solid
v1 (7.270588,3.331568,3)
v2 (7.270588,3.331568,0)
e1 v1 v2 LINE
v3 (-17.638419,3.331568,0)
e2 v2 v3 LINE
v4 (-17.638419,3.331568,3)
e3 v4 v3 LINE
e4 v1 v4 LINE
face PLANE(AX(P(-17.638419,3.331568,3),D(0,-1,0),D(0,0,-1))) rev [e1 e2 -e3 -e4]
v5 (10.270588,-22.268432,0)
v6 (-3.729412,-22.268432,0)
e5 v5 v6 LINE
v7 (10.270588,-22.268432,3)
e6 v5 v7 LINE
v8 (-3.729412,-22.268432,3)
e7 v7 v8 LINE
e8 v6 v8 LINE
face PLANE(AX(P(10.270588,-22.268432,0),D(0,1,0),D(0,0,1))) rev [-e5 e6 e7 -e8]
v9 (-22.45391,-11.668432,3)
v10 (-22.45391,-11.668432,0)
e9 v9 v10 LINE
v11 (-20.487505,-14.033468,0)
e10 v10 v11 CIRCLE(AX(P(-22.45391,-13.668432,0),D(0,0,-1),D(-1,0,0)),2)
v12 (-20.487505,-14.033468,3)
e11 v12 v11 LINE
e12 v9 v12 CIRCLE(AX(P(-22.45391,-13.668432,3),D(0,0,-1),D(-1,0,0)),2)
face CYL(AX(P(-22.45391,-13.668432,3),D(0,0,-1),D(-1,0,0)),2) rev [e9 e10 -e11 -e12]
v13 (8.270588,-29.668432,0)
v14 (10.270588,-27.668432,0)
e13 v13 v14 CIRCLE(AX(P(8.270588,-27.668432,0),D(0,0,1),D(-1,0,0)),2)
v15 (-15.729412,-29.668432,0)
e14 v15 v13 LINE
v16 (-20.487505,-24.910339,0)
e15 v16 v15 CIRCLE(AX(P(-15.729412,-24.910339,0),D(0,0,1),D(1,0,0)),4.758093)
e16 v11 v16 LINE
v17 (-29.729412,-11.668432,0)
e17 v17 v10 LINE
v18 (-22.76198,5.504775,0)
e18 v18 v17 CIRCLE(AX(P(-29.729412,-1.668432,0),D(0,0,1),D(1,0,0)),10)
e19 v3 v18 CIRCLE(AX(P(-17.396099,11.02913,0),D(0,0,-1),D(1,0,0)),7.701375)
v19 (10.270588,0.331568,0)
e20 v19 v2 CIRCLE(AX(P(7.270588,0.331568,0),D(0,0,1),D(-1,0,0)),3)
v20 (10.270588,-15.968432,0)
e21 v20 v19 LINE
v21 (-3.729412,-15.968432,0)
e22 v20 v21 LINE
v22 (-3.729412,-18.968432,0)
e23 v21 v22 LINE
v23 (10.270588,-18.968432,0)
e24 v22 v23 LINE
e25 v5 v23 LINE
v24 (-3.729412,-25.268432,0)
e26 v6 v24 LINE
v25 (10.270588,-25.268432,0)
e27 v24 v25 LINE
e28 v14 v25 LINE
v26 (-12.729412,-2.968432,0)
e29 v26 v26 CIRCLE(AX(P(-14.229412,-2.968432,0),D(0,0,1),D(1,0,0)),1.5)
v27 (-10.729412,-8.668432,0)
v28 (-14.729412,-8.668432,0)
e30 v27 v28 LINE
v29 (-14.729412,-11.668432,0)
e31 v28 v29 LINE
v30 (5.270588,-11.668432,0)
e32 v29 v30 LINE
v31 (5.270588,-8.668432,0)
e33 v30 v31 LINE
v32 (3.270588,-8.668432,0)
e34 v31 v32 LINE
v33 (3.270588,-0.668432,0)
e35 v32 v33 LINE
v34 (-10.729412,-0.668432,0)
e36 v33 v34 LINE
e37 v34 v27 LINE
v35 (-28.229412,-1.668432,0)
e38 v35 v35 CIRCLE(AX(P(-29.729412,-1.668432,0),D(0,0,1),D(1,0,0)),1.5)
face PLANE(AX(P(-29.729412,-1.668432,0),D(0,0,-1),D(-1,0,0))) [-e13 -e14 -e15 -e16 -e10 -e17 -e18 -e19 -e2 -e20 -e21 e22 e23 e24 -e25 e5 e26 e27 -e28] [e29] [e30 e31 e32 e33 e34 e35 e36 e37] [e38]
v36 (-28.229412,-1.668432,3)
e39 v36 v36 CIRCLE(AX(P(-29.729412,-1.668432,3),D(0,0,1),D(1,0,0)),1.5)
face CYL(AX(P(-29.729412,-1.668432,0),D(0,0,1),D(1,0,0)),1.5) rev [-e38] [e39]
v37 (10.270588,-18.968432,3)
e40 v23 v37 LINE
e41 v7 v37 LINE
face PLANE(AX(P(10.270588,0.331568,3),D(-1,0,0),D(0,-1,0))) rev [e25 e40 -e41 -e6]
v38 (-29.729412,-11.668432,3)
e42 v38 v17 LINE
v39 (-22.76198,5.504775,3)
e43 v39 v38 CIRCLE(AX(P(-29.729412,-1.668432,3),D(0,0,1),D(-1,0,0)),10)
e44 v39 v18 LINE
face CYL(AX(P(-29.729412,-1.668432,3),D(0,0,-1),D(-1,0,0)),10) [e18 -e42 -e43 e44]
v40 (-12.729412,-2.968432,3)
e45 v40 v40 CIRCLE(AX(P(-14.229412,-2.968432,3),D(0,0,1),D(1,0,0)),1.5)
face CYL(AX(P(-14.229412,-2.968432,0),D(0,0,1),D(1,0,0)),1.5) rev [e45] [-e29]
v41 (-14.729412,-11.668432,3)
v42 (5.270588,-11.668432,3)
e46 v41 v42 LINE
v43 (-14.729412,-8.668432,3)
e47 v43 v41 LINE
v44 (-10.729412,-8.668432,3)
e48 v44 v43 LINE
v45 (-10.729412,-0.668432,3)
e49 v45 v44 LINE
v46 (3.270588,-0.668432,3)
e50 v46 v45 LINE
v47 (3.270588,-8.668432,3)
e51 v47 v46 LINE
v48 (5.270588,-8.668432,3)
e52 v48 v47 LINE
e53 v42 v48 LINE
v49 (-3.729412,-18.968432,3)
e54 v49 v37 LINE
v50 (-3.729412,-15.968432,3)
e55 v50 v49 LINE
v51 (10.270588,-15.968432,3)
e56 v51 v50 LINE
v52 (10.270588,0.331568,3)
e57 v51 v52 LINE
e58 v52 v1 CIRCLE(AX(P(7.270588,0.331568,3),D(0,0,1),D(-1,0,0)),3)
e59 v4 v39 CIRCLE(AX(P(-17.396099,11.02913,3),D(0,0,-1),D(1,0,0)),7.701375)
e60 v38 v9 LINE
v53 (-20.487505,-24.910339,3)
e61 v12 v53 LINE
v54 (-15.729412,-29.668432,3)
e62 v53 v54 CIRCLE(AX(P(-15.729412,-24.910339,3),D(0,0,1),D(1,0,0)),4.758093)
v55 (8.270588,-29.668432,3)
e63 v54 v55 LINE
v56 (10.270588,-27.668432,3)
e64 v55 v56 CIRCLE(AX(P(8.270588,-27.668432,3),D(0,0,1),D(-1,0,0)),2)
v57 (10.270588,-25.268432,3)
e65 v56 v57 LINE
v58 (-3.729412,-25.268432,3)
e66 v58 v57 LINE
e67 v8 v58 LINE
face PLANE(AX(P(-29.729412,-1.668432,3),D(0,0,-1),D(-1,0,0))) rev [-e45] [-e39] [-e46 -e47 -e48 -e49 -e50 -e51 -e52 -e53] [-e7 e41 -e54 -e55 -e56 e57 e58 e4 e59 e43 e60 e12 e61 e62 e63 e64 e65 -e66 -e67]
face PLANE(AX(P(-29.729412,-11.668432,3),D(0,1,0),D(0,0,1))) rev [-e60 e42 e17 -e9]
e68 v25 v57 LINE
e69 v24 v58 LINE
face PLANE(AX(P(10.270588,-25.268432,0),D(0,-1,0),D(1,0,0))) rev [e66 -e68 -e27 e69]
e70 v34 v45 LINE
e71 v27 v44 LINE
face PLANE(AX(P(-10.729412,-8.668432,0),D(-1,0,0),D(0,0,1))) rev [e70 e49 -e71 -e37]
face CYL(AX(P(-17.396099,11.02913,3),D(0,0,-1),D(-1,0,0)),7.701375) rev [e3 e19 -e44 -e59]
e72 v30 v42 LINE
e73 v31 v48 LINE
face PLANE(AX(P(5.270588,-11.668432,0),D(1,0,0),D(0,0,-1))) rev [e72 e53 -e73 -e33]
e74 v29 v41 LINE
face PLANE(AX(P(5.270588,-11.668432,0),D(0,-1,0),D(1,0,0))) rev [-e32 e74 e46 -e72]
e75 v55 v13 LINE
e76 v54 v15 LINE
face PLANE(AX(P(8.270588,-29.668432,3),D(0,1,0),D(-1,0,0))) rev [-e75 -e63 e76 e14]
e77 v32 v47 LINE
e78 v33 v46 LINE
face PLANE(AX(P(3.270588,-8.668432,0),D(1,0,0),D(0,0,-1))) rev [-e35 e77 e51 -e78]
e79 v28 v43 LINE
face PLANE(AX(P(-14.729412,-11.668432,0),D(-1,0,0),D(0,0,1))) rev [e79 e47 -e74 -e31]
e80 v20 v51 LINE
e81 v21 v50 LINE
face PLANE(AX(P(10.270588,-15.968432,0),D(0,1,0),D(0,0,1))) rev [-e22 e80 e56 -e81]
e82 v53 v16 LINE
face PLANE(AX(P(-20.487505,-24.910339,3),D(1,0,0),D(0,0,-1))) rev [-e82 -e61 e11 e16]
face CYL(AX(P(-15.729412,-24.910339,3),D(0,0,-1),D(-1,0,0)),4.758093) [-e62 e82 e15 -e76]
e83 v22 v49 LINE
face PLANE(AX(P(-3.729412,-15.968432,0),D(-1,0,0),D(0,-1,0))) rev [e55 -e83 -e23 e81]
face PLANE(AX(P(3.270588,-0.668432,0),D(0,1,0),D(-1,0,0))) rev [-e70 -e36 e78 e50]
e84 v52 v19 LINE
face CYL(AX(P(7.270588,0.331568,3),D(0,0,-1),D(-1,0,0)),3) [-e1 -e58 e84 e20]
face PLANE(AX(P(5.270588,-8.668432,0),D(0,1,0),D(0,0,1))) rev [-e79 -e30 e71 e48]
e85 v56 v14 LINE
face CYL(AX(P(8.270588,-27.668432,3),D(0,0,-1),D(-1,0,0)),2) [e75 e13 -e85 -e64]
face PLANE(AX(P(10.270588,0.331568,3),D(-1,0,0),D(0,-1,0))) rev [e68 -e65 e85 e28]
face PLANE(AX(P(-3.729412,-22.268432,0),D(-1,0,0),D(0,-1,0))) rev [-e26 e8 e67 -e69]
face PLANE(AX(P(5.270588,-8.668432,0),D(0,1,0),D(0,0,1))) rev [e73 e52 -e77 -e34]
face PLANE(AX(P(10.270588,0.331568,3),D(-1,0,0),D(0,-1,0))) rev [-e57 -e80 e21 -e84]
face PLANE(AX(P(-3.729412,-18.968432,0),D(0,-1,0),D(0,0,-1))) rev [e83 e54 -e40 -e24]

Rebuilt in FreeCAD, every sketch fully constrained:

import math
import FreeCAD as App
import Part
import Sketcher
from FreeCAD import Vector

doc = App.newDocument("Part")
body = doc.addObject("PartDesign::Body", "Body")

# Sketch on XY plane
sketch1 = body.newObject("Sketcher::SketchObject", "Sketch")
sketch1.AttachmentSupport = (doc.getObject("XY_Plane"), [""])
sketch1.MapMode = "FlatFace"
sketch1.addGeometry(Part.LineSegment(Vector(10.3, -27.7, 0), Vector(10.3, 0.3, 0)), False)
sketch1.addGeometry(Part.ArcOfCircle(Part.Circle(Vector(7.3, 0.3, 0), Vector(0, 0, 1), 3), math.radians(0), math.radians(90)), False)
sketch1.addGeometry(Part.LineSegment(Vector(7.3, 3.3, 0), Vector(-17.6, 3.3, 0)), False)
sketch1.addGeometry(Part.ArcOfCircle(Part.Circle(Vector(-17.4, 11, 0), Vector(0, 0, 1), 7.7), math.radians(-134), math.radians(-92)), False)
sketch1.addGeometry(Part.ArcOfCircle(Part.Circle(Vector(-29.7, -1.7, 0), Vector(0, 0, 1), 10), math.radians(46), math.radians(90)), False)
sketch1.addGeometry(Part.ArcOfCircle(Part.Circle(Vector(-29.7, -1.7, 0), Vector(0, 0, 1), 10), math.radians(90), math.radians(180)), False)
sketch1.addGeometry(Part.ArcOfCircle(Part.Circle(Vector(-29.7, -1.7, 0), Vector(0, 0, 1), 10), math.radians(180), math.radians(270)), False)
sketch1.addGeometry(Part.LineSegment(Vector(-29.7, -11.7, 0), Vector(-22.5, -11.7, 0)), False)
sketch1.addGeometry(Part.ArcOfCircle(Part.Circle(Vector(-22.5, -13.7, 0), Vector(0, 0, 1), 2), math.radians(-11), math.radians(90)), False)
sketch1.addGeometry(Part.LineSegment(Vector(-20.5, -14, 0), Vector(-20.5, -24.9, 0)), False)
sketch1.addGeometry(Part.ArcOfCircle(Part.Circle(Vector(-15.7, -24.9, 0), Vector(0, 0, 1), 4.8), math.radians(180), math.radians(270)), False)
sketch1.addGeometry(Part.LineSegment(Vector(-15.7, -29.7, 0), Vector(8.3, -29.7, 0)), False)
sketch1.addGeometry(Part.ArcOfCircle(Part.Circle(Vector(8.3, -27.7, 0), Vector(0, 0, 1), 2), math.radians(-90), math.radians(0)), False)
sketch1.addConstraint(Sketcher.Constraint("Tangent", 0, 2, 1, 1))
sketch1.addConstraint(Sketcher.Constraint("Tangent", 1, 2, 2, 1))
sketch1.addConstraint(Sketcher.Constraint("Coincident", 2, 2, 3, 2))
sketch1.addConstraint(Sketcher.Constraint("Tangent", 3, 1, 4, 1))
sketch1.addConstraint(Sketcher.Constraint("Tangent", 4, 2, 5, 1))
sketch1.addConstraint(Sketcher.Constraint("Tangent", 5, 2, 6, 1))
sketch1.addConstraint(Sketcher.Constraint("Tangent", 6, 2, 7, 1))
sketch1.addConstraint(Sketcher.Constraint("Tangent", 7, 2, 8, 2))
sketch1.addConstraint(Sketcher.Constraint("Coincident", 8, 1, 9, 1))
sketch1.addConstraint(Sketcher.Constraint("Tangent", 9, 2, 10, 1))
sketch1.addConstraint(Sketcher.Constraint("Tangent", 10, 2, 11, 1))
sketch1.addConstraint(Sketcher.Constraint("Tangent", 11, 2, 12, 1))
sketch1.addConstraint(Sketcher.Constraint("Tangent", 12, 2, 0, 1))
sketch1.addConstraint(Sketcher.Constraint("Vertical", 0))
sketch1.addConstraint(Sketcher.Constraint("Horizontal", 2))
sketch1.addConstraint(Sketcher.Constraint("Horizontal", 7))
sketch1.addConstraint(Sketcher.Constraint("Vertical", 9))
sketch1.addConstraint(Sketcher.Constraint("Horizontal", 11))
sketch1.addConstraint(Sketcher.Constraint("Coincident", 6, 3, 4, 3))
sketch1.addConstraint(Sketcher.Constraint("Equal", 8, 12))
sketch1.addConstraint(Sketcher.Constraint("Horizontal", 6, 3, 5, 2))
sketch1.addConstraint(Sketcher.Constraint("Vertical", 6, 3, 4, 2))
sketch1.addConstraint(Sketcher.Constraint("Radius", 1, 3.0))
sketch1.addConstraint(Sketcher.Constraint("Radius", 4, 10.0))
sketch1.addConstraint(Sketcher.Constraint("Radius", 8, 2.0))
sketch1.addConstraint(Sketcher.Constraint("DistanceX", 11, 1, 11, 2, 24.0))
sketch1.addConstraint(Sketcher.Constraint("DistanceY", 0, 1, 0, 2, 28.0))
sketch1.addConstraint(Sketcher.Constraint("DistanceX", 4, 3, 1, 3, 37.0))
sketch1.addConstraint(Sketcher.Constraint("DistanceY", 4, 3, 1, 3, 2.0))
sketch1.addConstraint(Sketcher.Constraint("Radius", 3, 7.701375))
sketch1.addConstraint(Sketcher.Constraint("Radius", 10, 4.758093))
sketch1.addConstraint(Sketcher.Constraint("DistanceY", 9, 2, 9, 1, 10.87687))
sketch1.addConstraint(Sketcher.Constraint("DistanceX", 3, 3, -1, 1, 17.396099))
sketch1.addConstraint(Sketcher.Constraint("DistanceX", 2, 2, 2, 1, 24.909007))
sketch1.addConstraint(Sketcher.Constraint("DistanceY", -1, 1, 1, 3, 0.331568))
pad1 = body.newObject("PartDesign::Pad", "Pad")
pad1.Profile = sketch1
pad1.Length = 3

# Sketch on XY plane
sketch2 = body.newObject("Sketcher::SketchObject", "Sketch001")
sketch2.AttachmentSupport = (doc.getObject("XY_Plane"), [""])
sketch2.MapMode = "FlatFace"
sketch2.AttachmentOffset = App.Placement(Vector(0, 0, 3), App.Rotation())
sketch2.addGeometry(Part.Circle(Vector(-29.7, -1.7, 0), Vector(0, 0, 1), 1.5), False)
sketch2.addConstraint(Sketcher.Constraint("Diameter", 0, 3.0))
sketch2.addConstraint(Sketcher.Constraint("DistanceX", 0, 3, -1, 1, 29.729412))
sketch2.addConstraint(Sketcher.Constraint("DistanceY", 0, 3, -1, 1, 1.668432))
pocket1 = body.newObject("PartDesign::Pocket", "Pocket")
pocket1.Profile = sketch2
pocket1.Length = 3

# Sketch on XY plane
sketch3 = body.newObject("Sketcher::SketchObject", "Sketch002")
sketch3.AttachmentSupport = (doc.getObject("XY_Plane"), [""])
sketch3.MapMode = "FlatFace"
sketch3.AttachmentOffset = App.Placement(Vector(0, 0, 3), App.Rotation())
sketch3.addGeometry(Part.LineSegment(Vector(-14.7, -8.7, 0), Vector(-14.7, -11.7, 0)), False)
sketch3.addGeometry(Part.LineSegment(Vector(-14.7, -11.7, 0), Vector(5.3, -11.7, 0)), False)
sketch3.addGeometry(Part.LineSegment(Vector(5.3, -11.7, 0), Vector(5.3, -8.7, 0)), False)
sketch3.addGeometry(Part.LineSegment(Vector(5.3, -8.7, 0), Vector(-14.7, -8.7, 0)), False)
sketch3.addGeometry(Part.LineSegment(Vector(-3.7, -16, 0), Vector(-3.7, -19, 0)), False)
sketch3.addGeometry(Part.LineSegment(Vector(-3.7, -19, 0), Vector(10.3, -19, 0)), False)
sketch3.addGeometry(Part.LineSegment(Vector(10.3, -19, 0), Vector(10.3, -16, 0)), False)
sketch3.addGeometry(Part.LineSegment(Vector(10.3, -16, 0), Vector(-3.7, -16, 0)), False)
sketch3.addGeometry(Part.LineSegment(Vector(-3.7, -22.3, 0), Vector(-3.7, -25.3, 0)), False)
sketch3.addGeometry(Part.LineSegment(Vector(-3.7, -25.3, 0), Vector(10.3, -25.3, 0)), False)
sketch3.addGeometry(Part.LineSegment(Vector(10.3, -25.3, 0), Vector(10.3, -22.3, 0)), False)
sketch3.addGeometry(Part.LineSegment(Vector(10.3, -22.3, 0), Vector(-3.7, -22.3, 0)), False)
sketch3.addConstraint(Sketcher.Constraint("Coincident", 0, 2, 1, 1))
sketch3.addConstraint(Sketcher.Constraint("Coincident", 1, 2, 2, 1))
sketch3.addConstraint(Sketcher.Constraint("Coincident", 2, 2, 3, 1))
sketch3.addConstraint(Sketcher.Constraint("Coincident", 3, 2, 0, 1))
sketch3.addConstraint(Sketcher.Constraint("Coincident", 4, 2, 5, 1))
sketch3.addConstraint(Sketcher.Constraint("Coincident", 5, 2, 6, 1))
sketch3.addConstraint(Sketcher.Constraint("Coincident", 6, 2, 7, 1))
sketch3.addConstraint(Sketcher.Constraint("Coincident", 7, 2, 4, 1))
sketch3.addConstraint(Sketcher.Constraint("Coincident", 8, 2, 9, 1))
sketch3.addConstraint(Sketcher.Constraint("Coincident", 9, 2, 10, 1))
sketch3.addConstraint(Sketcher.Constraint("Coincident", 10, 2, 11, 1))
sketch3.addConstraint(Sketcher.Constraint("Coincident", 11, 2, 8, 1))
sketch3.addConstraint(Sketcher.Constraint("Vertical", 0))
sketch3.addConstraint(Sketcher.Constraint("Horizontal", 1))
sketch3.addConstraint(Sketcher.Constraint("Vertical", 2))
sketch3.addConstraint(Sketcher.Constraint("Horizontal", 3))
sketch3.addConstraint(Sketcher.Constraint("Vertical", 4))
sketch3.addConstraint(Sketcher.Constraint("Horizontal", 5))
sketch3.addConstraint(Sketcher.Constraint("Vertical", 6))
sketch3.addConstraint(Sketcher.Constraint("Horizontal", 7))
sketch3.addConstraint(Sketcher.Constraint("Vertical", 8))
sketch3.addConstraint(Sketcher.Constraint("Horizontal", 9))
sketch3.addConstraint(Sketcher.Constraint("Vertical", 10))
sketch3.addConstraint(Sketcher.Constraint("Horizontal", 11))
sketch3.addConstraint(Sketcher.Constraint("Vertical", 7, 2, 8, 2))
sketch3.addConstraint(Sketcher.Constraint("Vertical", 6, 2, 9, 2))
sketch3.addConstraint(Sketcher.Constraint("Equal", 2, 4))
sketch3.addConstraint(Sketcher.Constraint("Equal", 6, 8))
sketch3.addConstraint(Sketcher.Constraint("DistanceX", 1, 1, 1, 2, 20.0))
sketch3.addConstraint(Sketcher.Constraint("DistanceX", 5, 1, 5, 2, 14.0))
sketch3.addConstraint(Sketcher.Constraint("DistanceY", 0, 2, 0, 1, 3.0))
sketch3.addConstraint(Sketcher.Constraint("DistanceX", 4, 2, 1, 2, 9.0))
sketch3.addConstraint(Sketcher.Constraint("DistanceY", 4, 2, 1, 2, 7.3))
sketch3.addConstraint(Sketcher.Constraint("DistanceY", 8, 2, 4, 2, 6.3))
sketch3.addConstraint(Sketcher.Constraint("DistanceX", 0, 2, -1, 1, 14.729412))
sketch3.addConstraint(Sketcher.Constraint("DistanceY", 0, 2, -1, 1, 11.668432))
pocket2 = body.newObject("PartDesign::Pocket", "Pocket001")
pocket2.Profile = sketch3
pocket2.Length = 3

# Sketch on XY plane
sketch4 = body.newObject("Sketcher::SketchObject", "Sketch003")
sketch4.AttachmentSupport = (doc.getObject("XY_Plane"), [""])
sketch4.MapMode = "FlatFace"
sketch4.AttachmentOffset = App.Placement(Vector(0, 0, 3), App.Rotation())
sketch4.addGeometry(Part.LineSegment(Vector(-11, -1, 0), Vector(-11, -9, 0)), False)
sketch4.addGeometry(Part.LineSegment(Vector(-11, -9, 0), Vector(3, -9, 0)), False)
sketch4.addGeometry(Part.LineSegment(Vector(3, -9, 0), Vector(3, -1, 0)), False)
sketch4.addGeometry(Part.LineSegment(Vector(3, -1, 0), Vector(-11, -1, 0)), False)
sketch4.addConstraint(Sketcher.Constraint("Coincident", 0, 2, 1, 1))
sketch4.addConstraint(Sketcher.Constraint("Coincident", 1, 2, 2, 1))
sketch4.addConstraint(Sketcher.Constraint("Coincident", 2, 2, 3, 1))
sketch4.addConstraint(Sketcher.Constraint("Coincident", 3, 2, 0, 1))
sketch4.addConstraint(Sketcher.Constraint("Vertical", 0))
sketch4.addConstraint(Sketcher.Constraint("Horizontal", 1))
sketch4.addConstraint(Sketcher.Constraint("Vertical", 2))
sketch4.addConstraint(Sketcher.Constraint("Horizontal", 3))
sketch4.addConstraint(Sketcher.Constraint("DistanceX", 1, 1, 1, 2, 14.0))
sketch4.addConstraint(Sketcher.Constraint("DistanceY", 0, 2, 0, 1, 8.0))
sketch4.addConstraint(Sketcher.Constraint("DistanceX", 0, 2, -1, 1, 10.729412))
sketch4.addConstraint(Sketcher.Constraint("DistanceY", 0, 2, -1, 1, 8.668432))
pocket3 = body.newObject("PartDesign::Pocket", "Pocket002")
pocket3.Profile = sketch4
pocket3.Length = 3

# Sketch on XY plane
sketch5 = body.newObject("Sketcher::SketchObject", "Sketch004")
sketch5.AttachmentSupport = (doc.getObject("XY_Plane"), [""])
sketch5.MapMode = "FlatFace"
sketch5.AttachmentOffset = App.Placement(Vector(0, 0, 3), App.Rotation())
sketch5.addGeometry(Part.Circle(Vector(-14.2, -3, 0), Vector(0, 0, 1), 1.5), False)
sketch5.addConstraint(Sketcher.Constraint("Diameter", 0, 3.0))
sketch5.addConstraint(Sketcher.Constraint("DistanceX", 0, 3, -1, 1, 14.229412))
sketch5.addConstraint(Sketcher.Constraint("DistanceY", 0, 3, -1, 1, 2.968432))
pocket4 = body.newObject("PartDesign::Pocket", "Pocket003")
pocket4.Profile = sketch5
pocket4.Length = 3

doc.recompute()
